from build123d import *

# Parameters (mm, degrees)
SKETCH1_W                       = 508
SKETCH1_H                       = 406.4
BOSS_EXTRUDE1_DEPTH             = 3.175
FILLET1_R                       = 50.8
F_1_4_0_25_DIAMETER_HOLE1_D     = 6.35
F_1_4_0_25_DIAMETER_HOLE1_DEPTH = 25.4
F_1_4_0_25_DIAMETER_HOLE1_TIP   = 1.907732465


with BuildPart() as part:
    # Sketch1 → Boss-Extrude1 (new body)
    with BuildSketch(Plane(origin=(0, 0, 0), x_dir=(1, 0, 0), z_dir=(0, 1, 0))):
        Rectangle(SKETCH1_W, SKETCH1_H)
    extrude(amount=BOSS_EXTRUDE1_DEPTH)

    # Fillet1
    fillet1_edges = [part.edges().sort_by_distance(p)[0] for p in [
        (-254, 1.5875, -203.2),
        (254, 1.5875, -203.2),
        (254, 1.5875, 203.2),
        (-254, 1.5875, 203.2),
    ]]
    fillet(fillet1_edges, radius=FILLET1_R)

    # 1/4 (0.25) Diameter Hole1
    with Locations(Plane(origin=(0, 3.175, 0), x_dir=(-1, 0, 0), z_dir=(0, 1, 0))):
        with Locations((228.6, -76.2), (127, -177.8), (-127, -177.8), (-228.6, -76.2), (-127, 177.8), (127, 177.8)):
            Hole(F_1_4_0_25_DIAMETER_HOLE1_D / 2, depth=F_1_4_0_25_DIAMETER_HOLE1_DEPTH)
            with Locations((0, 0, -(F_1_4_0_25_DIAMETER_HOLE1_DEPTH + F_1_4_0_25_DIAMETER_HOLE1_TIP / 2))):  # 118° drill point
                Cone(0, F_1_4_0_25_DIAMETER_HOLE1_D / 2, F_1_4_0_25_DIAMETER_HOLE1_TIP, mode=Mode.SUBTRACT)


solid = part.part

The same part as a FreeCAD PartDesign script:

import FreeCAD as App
import Part
import Sketcher

V = App.Vector
Q = App.Units.Quantity


def edges_at(feature, points):
    """Names of the edges that pass closest to the given points."""
    edges = feature.Shape.Edges
    near = lambda p: min(range(len(edges)), key=lambda i: edges[i].distToShape(Part.Vertex(*p))[0])
    return sorted({f"Edge{near(p) + 1}" for p in points})

doc = App.newDocument("Part")
body = doc.addObject("PartDesign::Body", "Body")

sketch1 = body.newObject("Sketcher::SketchObject", "Sketch")
sketch1.AttachmentSupport = (doc.getObject("XZ_Plane"), [""])
sketch1.MapMode = "FlatFace"
sketch1.addGeometry([
    Part.LineSegment(V(-254, -203, 0), V(-254, 203, 0)),
    Part.LineSegment(V(-254, 203, 0), V(254, 203, 0)),
    Part.LineSegment(V(254, 203, 0), V(254, -203, 0)),
    Part.LineSegment(V(254, -203, 0), V(-254, -203, 0)),
], False)
sketch1.addConstraint([
    Sketcher.Constraint("Coincident", 0, 2, 1, 1),
    Sketcher.Constraint("Coincident", 1, 2, 2, 1),
    Sketcher.Constraint("Coincident", 2, 2, 3, 1),
    Sketcher.Constraint("Coincident", 3, 2, 0, 1),
    Sketcher.Constraint("Vertical", 0),
    Sketcher.Constraint("Horizontal", 1),
    Sketcher.Constraint("Vertical", 2),
    Sketcher.Constraint("Horizontal", 3),
    Sketcher.Constraint("Symmetric", 0, 2, 2, 2, -1, 1),
    Sketcher.Constraint("DistanceX", 1, 1, 1, 2, Q("20 in")),
    Sketcher.Constraint("DistanceY", 0, 1, 0, 2, Q("16 in")),
])
pad1 = body.newObject("PartDesign::Pad", "Pad")
pad1.Profile = sketch1
pad1.Length = Q("0.125 in")
pad1.Reversed = True
doc.recompute()

fillet = body.newObject("PartDesign::Fillet", "Fillet")
fillet.Base = (pad1, edges_at(pad1, [
    (-254, 1.587, -203.2),
    (254, 1.587, -203.2),
    (254, 1.587, 203.2),
    (-254, 1.587, 203.2),
]))
fillet.Radius = Q("2 in")

sketch2 = body.newObject("Sketcher::SketchObject", "Sketch001")
sketch2.AttachmentSupport = (doc.getObject("XZ_Plane"), [""])
sketch2.MapMode = "FlatFace"
sketch2.AttachmentOffset = App.Placement(V(0, 0, -0.125 * 25.4), App.Rotation())
sketch2.addGeometry([
    Part.Circle(V(-228.6, -76.2, 0), V(0, 0, 1), 3.2),
    Part.Circle(V(-127, -177.8, 0), V(0, 0, 1), 3.2),
    Part.Circle(V(127, -177.8, 0), V(0, 0, 1), 3.2),
    Part.Circle(V(228.6, -76.2, 0), V(0, 0, 1), 3.2),
    Part.Circle(V(127, 177.8, 0), V(0, 0, 1), 3.2),
    Part.Circle(V(-127, 177.8, 0), V(0, 0, 1), 3.2),
], False)
sketch2.addConstraint([
    Sketcher.Constraint("Equal", 0, 1),
    Sketcher.Constraint("Equal", 1, 2),
    Sketcher.Constraint("Equal", 2, 3),
    Sketcher.Constraint("Equal", 3, 4),
    Sketcher.Constraint("Equal", 4, 5),
    Sketcher.Constraint("Symmetric", 1, 3, 4, 3, -1, 1),
    Sketcher.Constraint("Symmetric", 2, 3, 5, 3, -1, 1),
    Sketcher.Constraint("Symmetric", 1, 3, 2, 3, -2),
    Sketcher.Constraint("Symmetric", 0, 3, 3, 3, -2),
    Sketcher.Constraint("Diameter", 0, Q("0.25 in")),
    Sketcher.Constraint("DistanceX", 0, 3, -1, 1, Q("9 in")),
    Sketcher.Constraint("DistanceY", 0, 3, -1, 1, Q("3 in")),
    Sketcher.Constraint("DistanceX", 1, 3, -1, 1, Q("5 in")),
    Sketcher.Constraint("DistanceY", 1, 3, -1, 1, Q("7 in")),
])
doc.recompute()
hole = body.newObject("PartDesign::Hole", "Hole")
hole.Profile = sketch2
hole.ThreadType = "None"
hole.Diameter = Q("0.25 in")
hole.DepthType = "Dimension"
hole.Depth = Q("1 in")
hole.DrillPoint = "Angled"
hole.DrillPointAngle = 118
hole.Reversed = True

doc.recompute()
